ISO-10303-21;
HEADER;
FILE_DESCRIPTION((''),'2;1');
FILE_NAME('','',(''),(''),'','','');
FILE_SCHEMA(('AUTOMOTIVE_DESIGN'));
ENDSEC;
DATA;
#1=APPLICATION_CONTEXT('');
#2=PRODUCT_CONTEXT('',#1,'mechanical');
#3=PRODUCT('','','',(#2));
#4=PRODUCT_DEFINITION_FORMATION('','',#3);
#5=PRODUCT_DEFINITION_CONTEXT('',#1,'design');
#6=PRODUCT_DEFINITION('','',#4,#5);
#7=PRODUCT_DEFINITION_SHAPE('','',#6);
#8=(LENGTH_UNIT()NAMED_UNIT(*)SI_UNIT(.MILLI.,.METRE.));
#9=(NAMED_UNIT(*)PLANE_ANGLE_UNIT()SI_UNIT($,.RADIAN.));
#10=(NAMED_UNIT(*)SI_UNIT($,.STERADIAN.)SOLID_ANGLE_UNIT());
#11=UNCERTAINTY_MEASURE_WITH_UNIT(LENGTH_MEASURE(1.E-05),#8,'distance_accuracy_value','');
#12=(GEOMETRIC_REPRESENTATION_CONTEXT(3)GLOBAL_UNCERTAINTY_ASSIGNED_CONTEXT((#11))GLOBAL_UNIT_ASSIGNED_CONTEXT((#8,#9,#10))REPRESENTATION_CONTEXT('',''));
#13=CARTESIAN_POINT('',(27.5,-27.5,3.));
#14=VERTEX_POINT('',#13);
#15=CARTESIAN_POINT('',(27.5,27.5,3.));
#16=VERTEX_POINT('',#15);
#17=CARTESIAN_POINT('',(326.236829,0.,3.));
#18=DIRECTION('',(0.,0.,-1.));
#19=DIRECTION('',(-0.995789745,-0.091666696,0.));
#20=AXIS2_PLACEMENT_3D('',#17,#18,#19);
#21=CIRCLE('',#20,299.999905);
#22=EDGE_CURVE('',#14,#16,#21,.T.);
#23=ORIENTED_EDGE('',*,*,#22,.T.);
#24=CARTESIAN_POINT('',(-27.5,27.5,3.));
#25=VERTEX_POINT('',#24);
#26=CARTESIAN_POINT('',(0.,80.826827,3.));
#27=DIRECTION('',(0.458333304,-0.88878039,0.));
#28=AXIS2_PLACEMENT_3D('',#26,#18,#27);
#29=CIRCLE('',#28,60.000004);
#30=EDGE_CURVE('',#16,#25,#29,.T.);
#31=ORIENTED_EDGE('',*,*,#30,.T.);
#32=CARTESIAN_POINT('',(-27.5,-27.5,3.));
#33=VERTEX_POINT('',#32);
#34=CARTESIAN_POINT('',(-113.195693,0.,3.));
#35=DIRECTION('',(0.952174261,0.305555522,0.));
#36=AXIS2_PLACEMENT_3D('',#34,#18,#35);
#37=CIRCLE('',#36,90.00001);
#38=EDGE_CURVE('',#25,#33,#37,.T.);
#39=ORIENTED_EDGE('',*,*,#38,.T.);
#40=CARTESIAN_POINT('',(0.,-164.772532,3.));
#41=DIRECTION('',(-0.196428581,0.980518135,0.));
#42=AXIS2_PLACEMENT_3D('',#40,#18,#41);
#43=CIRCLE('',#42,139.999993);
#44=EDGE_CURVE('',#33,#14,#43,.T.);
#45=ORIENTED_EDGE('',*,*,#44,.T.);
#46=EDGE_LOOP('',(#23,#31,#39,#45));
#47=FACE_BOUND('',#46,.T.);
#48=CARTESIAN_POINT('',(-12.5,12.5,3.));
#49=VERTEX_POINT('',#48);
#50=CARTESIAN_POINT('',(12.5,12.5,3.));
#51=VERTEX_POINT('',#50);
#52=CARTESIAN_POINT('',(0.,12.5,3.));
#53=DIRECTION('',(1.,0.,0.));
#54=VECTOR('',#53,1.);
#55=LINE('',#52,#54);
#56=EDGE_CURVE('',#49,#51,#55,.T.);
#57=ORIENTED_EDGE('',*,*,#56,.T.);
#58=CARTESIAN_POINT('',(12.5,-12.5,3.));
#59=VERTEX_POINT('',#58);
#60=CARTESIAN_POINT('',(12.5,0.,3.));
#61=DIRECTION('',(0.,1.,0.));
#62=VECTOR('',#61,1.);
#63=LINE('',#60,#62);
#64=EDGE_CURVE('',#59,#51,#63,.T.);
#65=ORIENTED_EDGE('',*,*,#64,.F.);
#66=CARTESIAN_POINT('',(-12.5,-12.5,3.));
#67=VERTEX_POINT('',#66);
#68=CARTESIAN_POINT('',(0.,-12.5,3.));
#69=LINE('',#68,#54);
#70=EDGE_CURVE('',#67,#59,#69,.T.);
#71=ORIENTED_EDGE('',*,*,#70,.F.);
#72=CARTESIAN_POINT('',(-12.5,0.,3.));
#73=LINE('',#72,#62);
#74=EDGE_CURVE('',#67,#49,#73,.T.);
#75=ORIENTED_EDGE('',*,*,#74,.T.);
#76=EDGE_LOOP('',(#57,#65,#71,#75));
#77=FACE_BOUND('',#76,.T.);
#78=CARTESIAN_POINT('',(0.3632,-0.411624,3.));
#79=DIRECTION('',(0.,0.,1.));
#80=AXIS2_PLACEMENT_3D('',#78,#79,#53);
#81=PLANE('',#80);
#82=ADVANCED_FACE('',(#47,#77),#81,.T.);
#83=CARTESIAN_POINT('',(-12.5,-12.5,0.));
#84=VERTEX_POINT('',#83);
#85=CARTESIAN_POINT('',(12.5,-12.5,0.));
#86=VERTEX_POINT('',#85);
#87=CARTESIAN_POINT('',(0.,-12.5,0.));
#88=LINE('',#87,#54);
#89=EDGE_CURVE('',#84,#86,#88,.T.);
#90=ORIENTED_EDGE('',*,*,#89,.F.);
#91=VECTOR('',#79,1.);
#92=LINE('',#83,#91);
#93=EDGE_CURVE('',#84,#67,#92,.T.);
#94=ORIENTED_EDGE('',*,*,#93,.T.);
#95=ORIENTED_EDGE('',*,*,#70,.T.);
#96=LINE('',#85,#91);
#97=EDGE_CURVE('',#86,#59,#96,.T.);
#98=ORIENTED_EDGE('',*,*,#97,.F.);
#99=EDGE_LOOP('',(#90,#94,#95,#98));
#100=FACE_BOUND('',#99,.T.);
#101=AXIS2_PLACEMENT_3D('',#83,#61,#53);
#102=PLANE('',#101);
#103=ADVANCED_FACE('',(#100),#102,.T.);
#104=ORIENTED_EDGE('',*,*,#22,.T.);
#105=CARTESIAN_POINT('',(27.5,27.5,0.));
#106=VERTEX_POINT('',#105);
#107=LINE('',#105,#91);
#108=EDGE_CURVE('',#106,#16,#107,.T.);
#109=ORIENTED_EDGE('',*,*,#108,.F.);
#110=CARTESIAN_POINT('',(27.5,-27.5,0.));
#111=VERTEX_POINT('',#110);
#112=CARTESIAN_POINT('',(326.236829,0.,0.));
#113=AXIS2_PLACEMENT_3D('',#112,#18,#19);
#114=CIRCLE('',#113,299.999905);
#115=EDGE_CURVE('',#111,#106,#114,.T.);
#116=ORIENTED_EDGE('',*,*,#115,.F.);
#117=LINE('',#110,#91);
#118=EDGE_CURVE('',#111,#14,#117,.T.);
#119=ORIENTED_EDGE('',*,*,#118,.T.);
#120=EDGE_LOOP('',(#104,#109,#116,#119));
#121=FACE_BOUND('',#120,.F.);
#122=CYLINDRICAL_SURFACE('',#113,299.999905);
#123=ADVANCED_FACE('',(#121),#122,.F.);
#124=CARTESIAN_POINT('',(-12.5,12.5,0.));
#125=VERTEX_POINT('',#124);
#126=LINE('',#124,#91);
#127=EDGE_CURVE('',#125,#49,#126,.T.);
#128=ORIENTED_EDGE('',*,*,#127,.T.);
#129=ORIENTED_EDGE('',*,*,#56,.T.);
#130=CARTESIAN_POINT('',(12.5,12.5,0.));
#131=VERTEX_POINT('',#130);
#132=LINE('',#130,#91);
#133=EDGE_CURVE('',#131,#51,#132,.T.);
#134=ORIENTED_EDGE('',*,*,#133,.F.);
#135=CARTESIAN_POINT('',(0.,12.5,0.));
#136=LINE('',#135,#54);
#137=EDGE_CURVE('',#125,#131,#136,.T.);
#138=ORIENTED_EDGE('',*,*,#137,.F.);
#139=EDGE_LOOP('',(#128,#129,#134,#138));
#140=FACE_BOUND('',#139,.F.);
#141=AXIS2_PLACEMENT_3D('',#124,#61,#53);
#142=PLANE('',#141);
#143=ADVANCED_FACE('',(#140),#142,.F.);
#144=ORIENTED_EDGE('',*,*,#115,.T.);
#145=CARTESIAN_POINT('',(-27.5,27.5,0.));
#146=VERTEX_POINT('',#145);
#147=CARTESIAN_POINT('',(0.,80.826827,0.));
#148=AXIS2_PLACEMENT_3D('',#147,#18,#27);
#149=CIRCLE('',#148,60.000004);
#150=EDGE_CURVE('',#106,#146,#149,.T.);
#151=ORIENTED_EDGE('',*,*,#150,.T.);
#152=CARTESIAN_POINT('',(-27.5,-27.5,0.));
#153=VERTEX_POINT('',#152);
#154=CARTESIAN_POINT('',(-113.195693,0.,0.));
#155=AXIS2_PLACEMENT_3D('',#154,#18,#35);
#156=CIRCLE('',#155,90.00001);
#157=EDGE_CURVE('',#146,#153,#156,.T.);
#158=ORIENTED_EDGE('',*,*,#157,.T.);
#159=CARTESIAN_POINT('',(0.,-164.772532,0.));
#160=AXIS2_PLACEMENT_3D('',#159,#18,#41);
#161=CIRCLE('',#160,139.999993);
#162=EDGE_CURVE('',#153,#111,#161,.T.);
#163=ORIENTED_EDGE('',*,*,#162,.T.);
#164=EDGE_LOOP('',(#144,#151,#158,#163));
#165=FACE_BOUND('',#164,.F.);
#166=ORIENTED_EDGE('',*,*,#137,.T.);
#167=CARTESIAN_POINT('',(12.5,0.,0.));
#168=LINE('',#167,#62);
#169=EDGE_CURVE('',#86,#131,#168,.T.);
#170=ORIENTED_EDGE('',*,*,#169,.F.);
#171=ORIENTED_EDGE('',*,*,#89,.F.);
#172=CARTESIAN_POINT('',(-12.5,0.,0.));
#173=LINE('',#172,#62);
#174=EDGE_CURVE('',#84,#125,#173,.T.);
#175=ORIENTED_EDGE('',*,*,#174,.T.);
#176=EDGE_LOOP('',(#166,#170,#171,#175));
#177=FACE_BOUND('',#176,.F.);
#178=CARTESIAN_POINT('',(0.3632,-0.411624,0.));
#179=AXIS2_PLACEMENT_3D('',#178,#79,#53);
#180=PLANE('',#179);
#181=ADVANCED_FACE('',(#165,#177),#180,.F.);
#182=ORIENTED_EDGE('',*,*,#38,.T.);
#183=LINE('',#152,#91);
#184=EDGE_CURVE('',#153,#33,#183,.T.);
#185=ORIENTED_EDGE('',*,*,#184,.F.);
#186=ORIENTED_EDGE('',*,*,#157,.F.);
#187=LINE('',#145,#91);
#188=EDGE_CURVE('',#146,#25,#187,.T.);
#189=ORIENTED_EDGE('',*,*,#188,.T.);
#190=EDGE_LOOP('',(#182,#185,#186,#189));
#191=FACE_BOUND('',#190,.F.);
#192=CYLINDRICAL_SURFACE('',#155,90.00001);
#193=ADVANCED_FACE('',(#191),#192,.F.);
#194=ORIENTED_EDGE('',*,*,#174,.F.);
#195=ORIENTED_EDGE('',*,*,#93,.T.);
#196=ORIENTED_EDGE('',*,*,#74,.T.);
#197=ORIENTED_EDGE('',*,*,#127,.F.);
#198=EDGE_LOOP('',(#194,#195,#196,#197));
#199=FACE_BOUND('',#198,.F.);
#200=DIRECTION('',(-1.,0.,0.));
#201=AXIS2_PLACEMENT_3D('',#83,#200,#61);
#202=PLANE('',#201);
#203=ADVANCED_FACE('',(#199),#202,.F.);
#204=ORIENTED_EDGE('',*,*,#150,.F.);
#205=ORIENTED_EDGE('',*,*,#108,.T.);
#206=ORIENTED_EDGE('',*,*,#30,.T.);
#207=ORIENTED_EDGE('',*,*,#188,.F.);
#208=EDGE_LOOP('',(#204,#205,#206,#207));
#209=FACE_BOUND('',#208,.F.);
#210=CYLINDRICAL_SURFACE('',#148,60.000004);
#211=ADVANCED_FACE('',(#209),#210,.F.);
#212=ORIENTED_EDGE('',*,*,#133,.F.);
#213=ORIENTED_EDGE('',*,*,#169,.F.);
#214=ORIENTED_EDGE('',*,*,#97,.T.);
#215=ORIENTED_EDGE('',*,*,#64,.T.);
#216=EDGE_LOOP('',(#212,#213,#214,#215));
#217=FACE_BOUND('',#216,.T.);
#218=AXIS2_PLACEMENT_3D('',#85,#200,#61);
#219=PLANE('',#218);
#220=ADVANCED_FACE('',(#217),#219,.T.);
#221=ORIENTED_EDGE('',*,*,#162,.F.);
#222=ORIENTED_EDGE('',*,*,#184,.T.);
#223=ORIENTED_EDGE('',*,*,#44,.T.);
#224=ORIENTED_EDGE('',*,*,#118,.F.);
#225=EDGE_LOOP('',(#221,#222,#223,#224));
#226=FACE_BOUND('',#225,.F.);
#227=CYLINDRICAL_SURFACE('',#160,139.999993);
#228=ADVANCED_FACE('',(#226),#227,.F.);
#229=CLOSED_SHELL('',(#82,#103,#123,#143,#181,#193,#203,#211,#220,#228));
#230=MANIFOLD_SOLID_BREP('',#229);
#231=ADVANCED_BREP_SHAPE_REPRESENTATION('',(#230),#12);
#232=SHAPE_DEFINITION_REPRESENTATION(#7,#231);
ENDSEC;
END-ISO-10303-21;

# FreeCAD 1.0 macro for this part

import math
import FreeCAD as App
import Part
import Sketcher


def add_polygon(sketch, points):
    """Adds a closed chain of lines whose ends are joined by coincident constraints."""
    first, n = sketch.GeometryCount, len(points)
    for a, b in zip(points, points[1:] + points[:1]):
        sketch.addGeometry(Part.LineSegment(App.Vector(*a, 0), App.Vector(*b, 0)), False)
    for i in range(n):
        sketch.addConstraint(Sketcher.Constraint("Coincident", first + i, 2, first + (i + 1) % n, 1))

doc = App.newDocument("Part")
params = doc.addObject("Spreadsheet::Sheet", "Params")
for row, (alias, value) in enumerate([
    ("sketch1_width", "25 mm"),
    ("pad1_length", "3 mm"),
], start=1):
    params.set(f"A{row}", alias)
    params.set(f"B{row}", "=" + value)
    params.setAlias(f"B{row}", alias)

body = doc.addObject("PartDesign::Body", "Body")

# Sketch on XY plane
sketch1 = doc.addObject("Sketcher::SketchObject", "Sketch")
body.addObject(sketch1)
sketch1.AttachmentSupport = (doc.XY_Plane, [""])
sketch1.MapMode = "FlatFace"
sketch1.addGeometry(Part.ArcOfCircle(Part.Circle(App.Vector(0, 80.826827, 0), App.Vector(0, 0, 1), 60.000004), math.radians(-117.279611), math.radians(-62.720389)), False)  # 0
sketch1.addGeometry(Part.ArcOfCircle(Part.Circle(App.Vector(-113.195693, 0, 0), App.Vector(0, 0, 1), 90.00001), math.radians(-17.791589), math.radians(17.791589)), False)  # 1
sketch1.addGeometry(Part.ArcOfCircle(Part.Circle(App.Vector(0, -164.772532, 0), App.Vector(0, 0, 1), 139.999993), math.radians(78.671811), math.radians(101.328189)), False)  # 2
sketch1.addGeometry(Part.ArcOfCircle(Part.Circle(App.Vector(326.236829, 0, 0), App.Vector(0, 0, 1), 299.999905), math.radians(174.740502), math.radians(185.259498)), False)  # 3
add_polygon(sketch1, [(12.5, -12.5), (-12.5, -12.5), (-12.5, 12.5), (12.5, 12.5)])  # lines 4-7
sketch1.addConstraint([
    Sketcher.Constraint("Coincident", 0, 1, 1, 2),
    Sketcher.Constraint("Coincident", 1, 1, 2, 2),
    Sketcher.Constraint("Coincident", 2, 1, 3, 2),
    Sketcher.Constraint("Coincident", 3, 1, 0, 2),
    Sketcher.Constraint("Horizontal", 4),
    Sketcher.Constraint("Vertical", 5),
    Sketcher.Constraint("Horizontal", 6),
    Sketcher.Constraint("Vertical", 7),
    Sketcher.Constraint("Symmetric", 0, 1, 2, 1, -1, 1),
    Sketcher.Constraint("Symmetric", 1, 1, 3, 1, -1, 1),
    Sketcher.Constraint("Symmetric", 4, 2, 6, 2, -1, 1),
    Sketcher.Constraint("Symmetric", 0, 1, 1, 1, -1),
    Sketcher.Constraint("Equal", 6, 5),
    Sketcher.Constraint("DistanceX", 4, 2, 4, 1, 25.0),
    Sketcher.Constraint("DistanceY", 1, 1, 0, 1, 55.0),
    Sketcher.Constraint("DistanceX", 1, 1, 2, 1, 55.0),
    Sketcher.Constraint("Radius", 1, 90.00001),
    Sketcher.Constraint("Radius", 0, 60.000004),
    Sketcher.Constraint("Radius", 2, 139.999993),
    Sketcher.Constraint("Radius", 3, 299.999905),
])
sketch1.setExpression("Constraints[17]", "Params.sketch1_width")
pad1 = doc.addObject("PartDesign::Pad", "Pad")
body.addObject(pad1)
pad1.Profile = sketch1
pad1.setExpression("Length", "Params.pad1_length")

doc.recompute()
